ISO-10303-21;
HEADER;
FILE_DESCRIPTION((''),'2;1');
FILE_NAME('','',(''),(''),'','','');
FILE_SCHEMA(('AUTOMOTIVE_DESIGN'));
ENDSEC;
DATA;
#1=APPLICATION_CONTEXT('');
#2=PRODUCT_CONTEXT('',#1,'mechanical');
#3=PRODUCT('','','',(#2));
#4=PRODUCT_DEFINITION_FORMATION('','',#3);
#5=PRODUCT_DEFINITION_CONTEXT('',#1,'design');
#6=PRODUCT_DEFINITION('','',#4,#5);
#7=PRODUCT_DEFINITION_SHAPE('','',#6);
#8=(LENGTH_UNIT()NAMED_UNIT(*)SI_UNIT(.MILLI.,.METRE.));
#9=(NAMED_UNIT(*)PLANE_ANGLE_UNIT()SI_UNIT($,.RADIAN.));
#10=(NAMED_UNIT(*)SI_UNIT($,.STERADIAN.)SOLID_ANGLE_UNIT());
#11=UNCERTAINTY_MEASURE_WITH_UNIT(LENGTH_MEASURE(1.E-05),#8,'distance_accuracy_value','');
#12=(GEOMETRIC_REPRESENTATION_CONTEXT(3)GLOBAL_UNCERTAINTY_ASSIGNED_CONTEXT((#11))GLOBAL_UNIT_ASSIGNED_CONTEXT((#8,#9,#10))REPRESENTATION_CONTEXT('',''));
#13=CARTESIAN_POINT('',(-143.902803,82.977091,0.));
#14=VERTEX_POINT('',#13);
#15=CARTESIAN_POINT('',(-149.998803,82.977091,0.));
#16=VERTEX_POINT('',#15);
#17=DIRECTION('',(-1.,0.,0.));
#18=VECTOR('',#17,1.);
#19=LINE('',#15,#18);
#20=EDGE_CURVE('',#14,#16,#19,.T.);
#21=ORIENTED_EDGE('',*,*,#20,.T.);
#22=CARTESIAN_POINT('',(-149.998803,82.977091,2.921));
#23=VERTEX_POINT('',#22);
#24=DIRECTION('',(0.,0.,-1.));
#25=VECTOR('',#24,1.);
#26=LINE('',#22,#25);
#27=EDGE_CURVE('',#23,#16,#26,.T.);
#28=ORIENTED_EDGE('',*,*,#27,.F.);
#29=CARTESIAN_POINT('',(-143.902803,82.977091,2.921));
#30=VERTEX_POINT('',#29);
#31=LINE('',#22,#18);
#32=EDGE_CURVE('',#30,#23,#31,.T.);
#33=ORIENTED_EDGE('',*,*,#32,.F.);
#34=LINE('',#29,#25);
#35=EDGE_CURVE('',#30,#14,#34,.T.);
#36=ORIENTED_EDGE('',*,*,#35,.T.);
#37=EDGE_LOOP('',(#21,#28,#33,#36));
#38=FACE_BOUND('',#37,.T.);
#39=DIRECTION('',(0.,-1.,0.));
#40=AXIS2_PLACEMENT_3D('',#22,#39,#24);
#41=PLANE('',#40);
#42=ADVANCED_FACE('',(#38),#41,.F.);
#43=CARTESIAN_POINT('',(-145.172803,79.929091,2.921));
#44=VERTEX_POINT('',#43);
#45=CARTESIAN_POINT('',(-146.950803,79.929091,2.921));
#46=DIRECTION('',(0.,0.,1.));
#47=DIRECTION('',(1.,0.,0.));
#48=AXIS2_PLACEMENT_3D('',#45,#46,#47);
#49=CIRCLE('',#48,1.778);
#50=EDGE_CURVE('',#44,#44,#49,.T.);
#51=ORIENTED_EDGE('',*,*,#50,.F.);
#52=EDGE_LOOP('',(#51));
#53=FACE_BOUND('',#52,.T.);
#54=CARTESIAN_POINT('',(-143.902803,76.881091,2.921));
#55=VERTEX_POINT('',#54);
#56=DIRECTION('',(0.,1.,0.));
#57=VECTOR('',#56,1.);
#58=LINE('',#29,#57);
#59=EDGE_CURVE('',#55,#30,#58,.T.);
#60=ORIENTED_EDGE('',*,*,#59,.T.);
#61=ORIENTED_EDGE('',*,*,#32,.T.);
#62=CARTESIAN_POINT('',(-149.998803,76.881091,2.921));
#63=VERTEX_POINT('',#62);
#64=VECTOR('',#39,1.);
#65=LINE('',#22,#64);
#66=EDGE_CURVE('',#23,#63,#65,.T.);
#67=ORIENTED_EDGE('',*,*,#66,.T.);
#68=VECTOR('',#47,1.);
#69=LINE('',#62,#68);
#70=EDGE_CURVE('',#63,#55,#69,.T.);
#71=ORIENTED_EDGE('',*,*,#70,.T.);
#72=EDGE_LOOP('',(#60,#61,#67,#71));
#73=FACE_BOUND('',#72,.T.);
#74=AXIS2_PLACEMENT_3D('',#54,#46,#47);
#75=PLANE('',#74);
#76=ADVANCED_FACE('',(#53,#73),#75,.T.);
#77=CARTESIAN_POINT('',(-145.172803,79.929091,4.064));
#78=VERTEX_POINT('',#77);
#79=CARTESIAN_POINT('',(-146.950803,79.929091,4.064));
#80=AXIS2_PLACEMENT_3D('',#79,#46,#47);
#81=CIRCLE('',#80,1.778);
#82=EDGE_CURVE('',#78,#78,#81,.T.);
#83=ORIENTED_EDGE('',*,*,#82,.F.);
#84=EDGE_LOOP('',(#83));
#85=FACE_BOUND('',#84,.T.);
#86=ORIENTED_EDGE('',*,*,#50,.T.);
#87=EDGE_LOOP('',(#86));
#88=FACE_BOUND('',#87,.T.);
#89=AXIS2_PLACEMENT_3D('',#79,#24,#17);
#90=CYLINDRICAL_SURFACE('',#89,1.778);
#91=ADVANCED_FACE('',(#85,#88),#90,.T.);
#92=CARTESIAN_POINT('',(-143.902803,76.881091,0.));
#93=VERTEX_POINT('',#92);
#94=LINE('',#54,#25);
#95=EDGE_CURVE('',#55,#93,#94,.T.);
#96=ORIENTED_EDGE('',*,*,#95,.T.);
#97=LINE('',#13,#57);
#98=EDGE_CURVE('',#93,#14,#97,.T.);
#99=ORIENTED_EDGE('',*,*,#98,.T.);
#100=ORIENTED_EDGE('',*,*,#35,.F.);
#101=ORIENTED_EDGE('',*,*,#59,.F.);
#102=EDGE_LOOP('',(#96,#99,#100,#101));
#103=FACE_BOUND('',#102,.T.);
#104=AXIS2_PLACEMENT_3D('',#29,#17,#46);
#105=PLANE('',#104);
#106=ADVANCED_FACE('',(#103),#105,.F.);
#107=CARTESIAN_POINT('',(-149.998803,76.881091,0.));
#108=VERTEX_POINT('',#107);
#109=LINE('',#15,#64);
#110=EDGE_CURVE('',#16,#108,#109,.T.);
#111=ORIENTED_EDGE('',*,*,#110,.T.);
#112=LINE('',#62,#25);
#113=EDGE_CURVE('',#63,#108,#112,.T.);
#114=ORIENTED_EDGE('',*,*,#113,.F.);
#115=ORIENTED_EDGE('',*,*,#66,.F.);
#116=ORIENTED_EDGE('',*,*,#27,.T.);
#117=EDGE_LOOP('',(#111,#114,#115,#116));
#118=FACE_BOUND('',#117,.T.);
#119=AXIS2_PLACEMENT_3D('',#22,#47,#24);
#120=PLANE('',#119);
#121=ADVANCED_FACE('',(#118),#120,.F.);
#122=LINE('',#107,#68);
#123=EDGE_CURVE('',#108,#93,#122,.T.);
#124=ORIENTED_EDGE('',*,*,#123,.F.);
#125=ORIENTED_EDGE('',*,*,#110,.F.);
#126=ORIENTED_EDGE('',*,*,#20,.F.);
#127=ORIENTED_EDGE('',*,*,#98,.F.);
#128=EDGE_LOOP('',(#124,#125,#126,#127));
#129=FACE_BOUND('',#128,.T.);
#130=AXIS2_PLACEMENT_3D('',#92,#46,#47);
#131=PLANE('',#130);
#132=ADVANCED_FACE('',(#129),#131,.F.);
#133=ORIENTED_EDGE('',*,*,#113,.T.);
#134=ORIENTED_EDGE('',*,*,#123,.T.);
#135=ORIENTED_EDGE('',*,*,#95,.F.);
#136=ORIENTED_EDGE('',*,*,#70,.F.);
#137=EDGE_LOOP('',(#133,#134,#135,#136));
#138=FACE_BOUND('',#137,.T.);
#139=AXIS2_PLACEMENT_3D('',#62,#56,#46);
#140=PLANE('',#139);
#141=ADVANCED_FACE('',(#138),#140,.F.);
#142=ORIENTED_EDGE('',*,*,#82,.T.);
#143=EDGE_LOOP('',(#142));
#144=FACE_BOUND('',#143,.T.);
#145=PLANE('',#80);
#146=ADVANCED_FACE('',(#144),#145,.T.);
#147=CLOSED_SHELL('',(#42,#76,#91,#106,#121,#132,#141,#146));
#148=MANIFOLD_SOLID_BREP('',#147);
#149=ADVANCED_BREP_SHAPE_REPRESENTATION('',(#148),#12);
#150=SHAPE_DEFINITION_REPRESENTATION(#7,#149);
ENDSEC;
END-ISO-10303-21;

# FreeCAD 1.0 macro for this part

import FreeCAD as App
import Part
import Sketcher
from FreeCAD import Vector
Q = App.Units.Quantity

doc = App.newDocument("Part")
body = doc.addObject("PartDesign::Body", "Body")

# Sketch on XY plane
sketch1 = body.newObject("Sketcher::SketchObject", "Sketch")
sketch1.AttachmentSupport = (doc.getObject("XY_Plane"), [""])
sketch1.MapMode = "FlatFace"
sketch1.addGeometry([
    Part.LineSegment(Vector(-149.998803, 82.977091, 0), Vector(-149.998803, 76.881091, 0)),
    Part.LineSegment(Vector(-149.998803, 76.881091, 0), Vector(-143.902803, 76.881091, 0)),
    Part.LineSegment(Vector(-143.902803, 76.881091, 0), Vector(-143.902803, 82.977091, 0)),
    Part.LineSegment(Vector(-143.902803, 82.977091, 0), Vector(-149.998803, 82.977091, 0)),
], False)
sketch1.addConstraint([
    Sketcher.Constraint("Coincident", 0, 2, 1, 1),
    Sketcher.Constraint("Coincident", 1, 2, 2, 1),
    Sketcher.Constraint("Coincident", 2, 2, 3, 1),
    Sketcher.Constraint("Coincident", 3, 2, 0, 1),
    Sketcher.Constraint("Vertical", 0),
    Sketcher.Constraint("Horizontal", 1),
    Sketcher.Constraint("Vertical", 2),
    Sketcher.Constraint("Horizontal", 3),
    Sketcher.Constraint("Equal", 3, 0),
    Sketcher.Constraint("DistanceX", 1, 1, 1, 2, Q("0.24 in")),
    Sketcher.Constraint("DistanceY", -1, 1, 0, 2, Q("76.881091 mm")),
    Sketcher.Constraint("DistanceX", 0, 2, -1, 1, Q("149.998803 mm")),
])
pad1 = body.newObject("PartDesign::Pad", "Pad")
pad1.Profile = sketch1
pad1.Length = Q("0.115 in")

# Sketch on XY plane
sketch2 = body.newObject("Sketcher::SketchObject", "Sketch001")
sketch2.AttachmentSupport = (doc.getObject("XY_Plane"), [""])
sketch2.MapMode = "FlatFace"
sketch2.AttachmentOffset = App.Placement(Vector(0, 0, 0.115 * 25.4), App.Rotation())
sketch2.addGeometry(Part.Circle(Vector(-146.950803, 79.929091, 0), Vector(0, 0, 1), 1.778), False)
sketch2.addConstraint([
    Sketcher.Constraint("Diameter", 0, Q("0.14 in")),
    Sketcher.Constraint("DistanceY", -1, 1, 0, 3, Q("79.929091 mm")),
    Sketcher.Constraint("DistanceX", 0, 3, -1, 1, Q("146.950803 mm")),
])
pad2 = body.newObject("PartDesign::Pad", "Pad001")
pad2.Profile = sketch2
pad2.Length = Q("0.045 in")

doc.recompute()
